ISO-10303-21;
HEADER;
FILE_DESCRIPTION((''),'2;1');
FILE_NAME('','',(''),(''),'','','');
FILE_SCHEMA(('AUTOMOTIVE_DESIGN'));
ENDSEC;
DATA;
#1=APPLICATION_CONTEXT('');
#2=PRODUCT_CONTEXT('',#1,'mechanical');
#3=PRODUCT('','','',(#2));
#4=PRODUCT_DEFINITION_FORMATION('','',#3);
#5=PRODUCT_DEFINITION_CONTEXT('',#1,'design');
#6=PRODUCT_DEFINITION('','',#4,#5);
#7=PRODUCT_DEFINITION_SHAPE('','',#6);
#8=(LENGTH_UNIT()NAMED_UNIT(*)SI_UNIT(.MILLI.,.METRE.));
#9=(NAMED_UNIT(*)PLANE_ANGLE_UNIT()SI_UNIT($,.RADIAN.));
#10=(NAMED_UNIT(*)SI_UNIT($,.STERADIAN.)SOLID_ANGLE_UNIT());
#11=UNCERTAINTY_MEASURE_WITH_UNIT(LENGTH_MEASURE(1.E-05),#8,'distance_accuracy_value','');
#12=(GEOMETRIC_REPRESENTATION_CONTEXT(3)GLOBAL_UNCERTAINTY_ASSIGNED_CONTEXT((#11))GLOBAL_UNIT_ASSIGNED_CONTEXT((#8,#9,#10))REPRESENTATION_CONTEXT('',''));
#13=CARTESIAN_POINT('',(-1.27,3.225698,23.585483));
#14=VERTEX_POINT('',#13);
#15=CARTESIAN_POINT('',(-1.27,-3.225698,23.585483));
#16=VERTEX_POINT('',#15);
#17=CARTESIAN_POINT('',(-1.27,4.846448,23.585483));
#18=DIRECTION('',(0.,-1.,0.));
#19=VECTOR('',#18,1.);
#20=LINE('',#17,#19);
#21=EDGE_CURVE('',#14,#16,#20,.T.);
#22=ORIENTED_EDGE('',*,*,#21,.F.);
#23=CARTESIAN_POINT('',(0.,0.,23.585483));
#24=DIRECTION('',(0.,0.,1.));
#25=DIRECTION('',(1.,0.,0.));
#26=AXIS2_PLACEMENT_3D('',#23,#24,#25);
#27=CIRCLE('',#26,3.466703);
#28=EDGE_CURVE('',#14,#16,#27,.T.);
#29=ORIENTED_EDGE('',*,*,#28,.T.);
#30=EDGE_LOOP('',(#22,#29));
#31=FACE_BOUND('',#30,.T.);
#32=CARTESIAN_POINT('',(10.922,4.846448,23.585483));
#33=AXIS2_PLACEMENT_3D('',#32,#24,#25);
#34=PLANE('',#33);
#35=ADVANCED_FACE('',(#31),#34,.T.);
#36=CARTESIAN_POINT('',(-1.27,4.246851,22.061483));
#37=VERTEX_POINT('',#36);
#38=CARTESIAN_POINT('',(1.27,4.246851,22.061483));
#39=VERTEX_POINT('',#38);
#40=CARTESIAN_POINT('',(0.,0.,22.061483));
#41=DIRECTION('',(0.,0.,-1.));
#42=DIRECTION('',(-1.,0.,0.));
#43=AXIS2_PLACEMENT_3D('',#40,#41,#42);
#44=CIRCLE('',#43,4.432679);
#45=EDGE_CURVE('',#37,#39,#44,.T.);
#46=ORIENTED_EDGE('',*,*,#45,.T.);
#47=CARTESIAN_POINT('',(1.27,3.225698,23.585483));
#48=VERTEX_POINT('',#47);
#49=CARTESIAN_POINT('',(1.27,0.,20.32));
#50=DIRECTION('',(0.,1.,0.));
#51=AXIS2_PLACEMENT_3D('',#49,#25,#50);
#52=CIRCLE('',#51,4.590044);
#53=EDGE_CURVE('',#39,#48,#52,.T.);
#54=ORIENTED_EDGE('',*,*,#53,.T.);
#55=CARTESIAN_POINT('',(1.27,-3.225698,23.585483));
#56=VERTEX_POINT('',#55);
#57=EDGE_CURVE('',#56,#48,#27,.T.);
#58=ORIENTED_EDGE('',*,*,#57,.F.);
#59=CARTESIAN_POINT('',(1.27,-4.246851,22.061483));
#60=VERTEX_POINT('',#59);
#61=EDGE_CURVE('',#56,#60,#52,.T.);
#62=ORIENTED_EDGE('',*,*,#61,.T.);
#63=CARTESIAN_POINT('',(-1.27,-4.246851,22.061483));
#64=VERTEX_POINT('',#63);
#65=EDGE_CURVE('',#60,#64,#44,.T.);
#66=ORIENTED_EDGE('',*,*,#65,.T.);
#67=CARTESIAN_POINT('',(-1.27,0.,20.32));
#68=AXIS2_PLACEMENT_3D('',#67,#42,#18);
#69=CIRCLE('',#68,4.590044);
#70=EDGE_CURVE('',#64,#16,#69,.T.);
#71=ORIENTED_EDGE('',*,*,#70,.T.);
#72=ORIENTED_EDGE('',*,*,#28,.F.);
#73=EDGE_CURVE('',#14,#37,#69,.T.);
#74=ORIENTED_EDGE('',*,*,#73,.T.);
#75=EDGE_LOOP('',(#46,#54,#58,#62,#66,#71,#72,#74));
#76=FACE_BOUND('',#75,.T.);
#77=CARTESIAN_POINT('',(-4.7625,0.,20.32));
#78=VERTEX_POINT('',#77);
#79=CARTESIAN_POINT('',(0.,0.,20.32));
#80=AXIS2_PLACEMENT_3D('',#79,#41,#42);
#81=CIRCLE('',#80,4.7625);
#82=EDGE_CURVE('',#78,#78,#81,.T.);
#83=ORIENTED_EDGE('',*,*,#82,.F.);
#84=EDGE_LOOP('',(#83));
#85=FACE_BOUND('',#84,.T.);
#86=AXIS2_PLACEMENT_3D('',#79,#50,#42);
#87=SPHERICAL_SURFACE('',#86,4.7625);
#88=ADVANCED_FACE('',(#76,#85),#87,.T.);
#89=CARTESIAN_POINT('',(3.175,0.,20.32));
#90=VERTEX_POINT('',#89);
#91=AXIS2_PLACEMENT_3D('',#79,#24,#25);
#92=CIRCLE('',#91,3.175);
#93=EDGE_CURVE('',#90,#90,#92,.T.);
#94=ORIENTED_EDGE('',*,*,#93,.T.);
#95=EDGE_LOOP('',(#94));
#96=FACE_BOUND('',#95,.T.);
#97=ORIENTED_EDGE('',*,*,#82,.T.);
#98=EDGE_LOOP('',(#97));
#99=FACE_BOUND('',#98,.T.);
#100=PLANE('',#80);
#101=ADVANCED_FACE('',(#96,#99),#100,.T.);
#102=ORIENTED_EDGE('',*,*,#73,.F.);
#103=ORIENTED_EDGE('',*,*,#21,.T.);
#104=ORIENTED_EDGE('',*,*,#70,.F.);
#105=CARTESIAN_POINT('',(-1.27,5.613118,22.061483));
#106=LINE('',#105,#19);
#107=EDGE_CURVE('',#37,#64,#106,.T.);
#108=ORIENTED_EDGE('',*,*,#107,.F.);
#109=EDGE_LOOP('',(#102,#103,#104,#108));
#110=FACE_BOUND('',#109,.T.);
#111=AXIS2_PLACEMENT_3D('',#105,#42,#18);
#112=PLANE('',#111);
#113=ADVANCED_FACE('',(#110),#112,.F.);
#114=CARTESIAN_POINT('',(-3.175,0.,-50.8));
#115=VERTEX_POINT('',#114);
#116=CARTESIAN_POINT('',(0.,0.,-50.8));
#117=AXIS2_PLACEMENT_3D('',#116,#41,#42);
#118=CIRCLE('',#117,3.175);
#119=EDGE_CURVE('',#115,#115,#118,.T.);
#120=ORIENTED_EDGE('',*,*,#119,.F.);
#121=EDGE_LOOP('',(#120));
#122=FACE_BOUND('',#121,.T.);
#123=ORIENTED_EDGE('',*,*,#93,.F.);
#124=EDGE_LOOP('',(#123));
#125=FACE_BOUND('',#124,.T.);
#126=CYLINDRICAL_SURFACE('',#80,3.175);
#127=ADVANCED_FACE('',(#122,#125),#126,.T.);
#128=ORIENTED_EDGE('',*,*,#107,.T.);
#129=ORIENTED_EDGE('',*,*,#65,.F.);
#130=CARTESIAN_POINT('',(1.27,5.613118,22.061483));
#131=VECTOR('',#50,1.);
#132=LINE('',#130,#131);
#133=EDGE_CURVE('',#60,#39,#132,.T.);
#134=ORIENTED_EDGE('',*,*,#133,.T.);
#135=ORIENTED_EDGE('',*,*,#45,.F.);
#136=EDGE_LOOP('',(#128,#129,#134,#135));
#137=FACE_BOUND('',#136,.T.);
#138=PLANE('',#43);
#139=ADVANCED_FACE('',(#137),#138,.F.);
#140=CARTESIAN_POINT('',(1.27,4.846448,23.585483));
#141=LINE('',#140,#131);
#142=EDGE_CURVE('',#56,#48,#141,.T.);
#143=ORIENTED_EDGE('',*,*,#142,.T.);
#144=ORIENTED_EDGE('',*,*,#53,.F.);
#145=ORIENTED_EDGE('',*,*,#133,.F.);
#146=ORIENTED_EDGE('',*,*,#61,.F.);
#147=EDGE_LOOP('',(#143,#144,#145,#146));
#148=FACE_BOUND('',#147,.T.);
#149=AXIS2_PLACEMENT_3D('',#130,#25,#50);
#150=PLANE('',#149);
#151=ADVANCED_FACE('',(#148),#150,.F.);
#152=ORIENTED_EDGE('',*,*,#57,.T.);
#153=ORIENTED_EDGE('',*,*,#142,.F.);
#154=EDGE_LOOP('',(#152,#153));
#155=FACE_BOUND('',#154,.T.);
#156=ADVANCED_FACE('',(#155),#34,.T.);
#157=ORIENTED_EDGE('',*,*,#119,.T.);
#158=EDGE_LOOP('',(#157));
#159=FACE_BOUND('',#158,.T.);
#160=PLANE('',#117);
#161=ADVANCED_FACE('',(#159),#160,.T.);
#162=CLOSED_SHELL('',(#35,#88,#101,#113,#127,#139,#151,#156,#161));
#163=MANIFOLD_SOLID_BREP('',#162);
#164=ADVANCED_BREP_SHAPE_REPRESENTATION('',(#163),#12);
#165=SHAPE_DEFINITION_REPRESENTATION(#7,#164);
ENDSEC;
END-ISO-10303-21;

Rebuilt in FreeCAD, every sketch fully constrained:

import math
import FreeCAD as App
import Part
import Sketcher

V = App.Vector
Q = App.Units.Quantity


def add_polygon(sketch, points):
    """Adds a closed chain of lines whose ends are joined by coincident constraints."""
    first, n = sketch.GeometryCount, len(points)
    for a, b in zip(points, points[1:] + points[:1]):
        sketch.addGeometry(Part.LineSegment(App.Vector(*a, 0), App.Vector(*b, 0)), False)
    for i in range(n):
        sketch.addConstraint(Sketcher.Constraint("Coincident", first + i, 2, first + (i + 1) % n, 1))

doc = App.newDocument("Part")
body = doc.addObject("PartDesign::Body", "Body")

sketch1 = doc.addObject("Sketcher::SketchObject", "Sketch")
body.addObject(sketch1)
sketch1.AttachmentSupport = (doc.XY_Plane, [""])
sketch1.MapMode = "FlatFace"
sketch1.addGeometry(Part.Circle(V(0, 0, 0), V(0, 0, 1), 3.175), False)
sketch1.addConstraint([
    Sketcher.Constraint("Coincident", 0, 3, -1, 1),
    Sketcher.Constraint("Diameter", 0, Q("0.25 in")),
])
pad1 = doc.addObject("PartDesign::Pad", "Pad")
body.addObject(pad1)
pad1.Profile = sketch1
pad1.Length = Q("0.8 in")

sketch2 = doc.addObject("Sketcher::SketchObject", "Sketch001")
body.addObject(sketch2)
sketch2.AttachmentSupport = (doc.XY_Plane, [""])
sketch2.MapMode = "FlatFace"
sketch2.AttachmentOffset = App.Placement(V(0, 0, 0.8 * 25.4), App.Rotation())
sketch2.addGeometry([
    Part.LineSegment(V(0, 4.7625, 0), V(0, -4.7625, 0)),
    Part.ArcOfCircle(Part.Circle(V(0, 0, 0), V(0, 0, 1), 4.7625), math.radians(-90), math.radians(90)),
], False)
sketch2.addConstraint([
    Sketcher.Constraint("Coincident", 0, 1, 1, 2),
    Sketcher.Constraint("Coincident", 1, 1, 0, 2),
    Sketcher.Constraint("Vertical", 0),
    Sketcher.Constraint("Coincident", 1, 3, -1, 1),
    Sketcher.Constraint("PointOnObject", 0, 1, -2),
    Sketcher.Constraint("Radius", 1, Q("0.1875 in")),
])
revolution = doc.addObject("PartDesign::Revolution", "Revolution")
body.addObject(revolution)
revolution.Profile = sketch2
revolution.ReferenceAxis = (sketch2, ["V_Axis"])
revolution.Angle = 180
revolution.Reversed = True

sketch3 = doc.addObject("Sketcher::SketchObject", "Sketch002")
body.addObject(sketch3)
sketch3.AttachmentSupport = (doc.YZ_Plane, [""])
sketch3.MapMode = "FlatFace"
sketch3.AttachmentOffset = App.Placement(V(0, 0, 0.1 * 25.4), App.Rotation())
add_polygon(sketch3, [(4.846448, 25.341538), (-6.875222, 25.341538), (-6.875222, 23.585483), (4.846448, 23.585483)])
sketch3.addConstraint([
    Sketcher.Constraint("Horizontal", 0),
    Sketcher.Constraint("Vertical", 1),
    Sketcher.Constraint("Horizontal", 2),
    Sketcher.Constraint("Vertical", 3),
    Sketcher.Constraint("DistanceX", 0, 2, 0, 1, 11.72167),
    Sketcher.Constraint("DistanceY", 1, 2, 1, 1, 1.756055),
    Sketcher.Constraint("DistanceX", 0, 2, -1, 1, 6.875222),
    Sketcher.Constraint("DistanceY", -1, 1, 0, 2, 25.341538),
])
pocket1 = doc.addObject("PartDesign::Pocket", "Pocket")
body.addObject(pocket1)
pocket1.Profile = sketch3
pocket1.Type = "ThroughAll"
pocket1.Midplane = True

sketch4 = doc.addObject("Sketcher::SketchObject", "Sketch003")
body.addObject(sketch4)
sketch4.AttachmentSupport = (doc.XY_Plane, [""])
sketch4.MapMode = "FlatFace"
sketch4.AttachmentOffset = App.Placement(V(0, 0, 23.585483), App.Rotation())
add_polygon(sketch4, [(-1.27, 5.613118), (-1.27, -7.198877), (1.27, -7.198877), (1.27, 5.613118)])
sketch4.addConstraint([
    Sketcher.Constraint("Vertical", 0),
    Sketcher.Constraint("Horizontal", 1),
    Sketcher.Constraint("Vertical", 2),
    Sketcher.Constraint("Horizontal", 3),
    Sketcher.Constraint("DistanceX", 1, 1, 1, 2, Q("0.1 in")),
    Sketcher.Constraint("DistanceX", 0, 2, -1, 1, Q("0.05 in")),
    Sketcher.Constraint("DistanceY", 0, 2, 0, 1, 12.811995),
    Sketcher.Constraint("DistanceY", 0, 2, -1, 1, 7.198877),
])
pocket2 = doc.addObject("PartDesign::Pocket", "Pocket001")
body.addObject(pocket2)
pocket2.Profile = sketch4
pocket2.Length = Q("0.06 in")

sketch5 = doc.addObject("Sketcher::SketchObject", "Sketch004")
body.addObject(sketch5)
sketch5.AttachmentSupport = (doc.XY_Plane, [""])
sketch5.MapMode = "FlatFace"
sketch5.AttachmentOffset = App.Placement(V(0, 0, -2 * 25.4), App.Rotation())
sketch5.addGeometry(Part.Circle(V(0, 0, 0), V(0, 0, 1), 3.175), False)
sketch5.addConstraint([
    Sketcher.Constraint("Coincident", 0, 3, -1, 1),
    Sketcher.Constraint("Diameter", 0, Q("0.25 in")),
])
pad2 = doc.addObject("PartDesign::Pad", "Pad001")
body.addObject(pad2)
pad2.Profile = sketch5
pad2.Length = Q("2 in")

doc.recompute()
